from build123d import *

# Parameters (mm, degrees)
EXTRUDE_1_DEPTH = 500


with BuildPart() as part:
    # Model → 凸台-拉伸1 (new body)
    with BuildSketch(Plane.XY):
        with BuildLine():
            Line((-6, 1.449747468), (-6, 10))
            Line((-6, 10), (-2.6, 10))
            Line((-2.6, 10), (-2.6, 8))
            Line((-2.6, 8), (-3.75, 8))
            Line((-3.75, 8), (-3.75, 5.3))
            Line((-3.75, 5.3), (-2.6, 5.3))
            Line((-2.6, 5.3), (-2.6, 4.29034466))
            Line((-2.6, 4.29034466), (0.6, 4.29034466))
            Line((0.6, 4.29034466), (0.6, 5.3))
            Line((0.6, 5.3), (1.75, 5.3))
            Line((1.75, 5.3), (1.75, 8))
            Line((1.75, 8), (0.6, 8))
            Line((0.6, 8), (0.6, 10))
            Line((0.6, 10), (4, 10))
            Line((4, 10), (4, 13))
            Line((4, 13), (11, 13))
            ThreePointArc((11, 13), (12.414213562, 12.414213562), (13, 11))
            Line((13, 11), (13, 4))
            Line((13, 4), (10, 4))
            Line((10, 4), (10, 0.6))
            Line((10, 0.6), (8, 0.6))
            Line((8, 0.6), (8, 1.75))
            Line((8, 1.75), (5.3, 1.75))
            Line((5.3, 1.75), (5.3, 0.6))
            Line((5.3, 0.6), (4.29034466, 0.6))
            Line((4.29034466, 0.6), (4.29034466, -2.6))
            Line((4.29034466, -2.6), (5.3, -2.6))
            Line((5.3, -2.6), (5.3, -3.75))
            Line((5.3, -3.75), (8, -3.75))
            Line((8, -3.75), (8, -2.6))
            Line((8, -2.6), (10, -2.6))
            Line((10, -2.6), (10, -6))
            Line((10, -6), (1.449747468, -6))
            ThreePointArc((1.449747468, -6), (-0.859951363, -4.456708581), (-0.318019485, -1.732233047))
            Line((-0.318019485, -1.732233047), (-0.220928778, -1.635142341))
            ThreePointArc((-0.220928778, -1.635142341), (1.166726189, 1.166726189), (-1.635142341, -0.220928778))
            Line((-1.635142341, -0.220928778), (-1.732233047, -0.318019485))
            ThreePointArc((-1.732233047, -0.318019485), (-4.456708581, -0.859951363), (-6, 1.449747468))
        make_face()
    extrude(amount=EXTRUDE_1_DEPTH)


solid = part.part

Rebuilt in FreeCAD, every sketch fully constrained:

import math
import FreeCAD as App
import Part
import Sketcher
Q = App.Units.Quantity

doc = App.newDocument("Part")
body = doc.addObject("PartDesign::Body", "Body")

# Sketch on XY plane
sketch1 = body.newObject("Sketcher::SketchObject", "Sketch")
sketch1.AttachmentSupport = (doc.getObject("XY_Plane"), [""])
sketch1.MapMode = "FlatFace"
sketch1.addGeometry([
    Part.LineSegment(App.Vector(-6, 10, 0), App.Vector(-6, 1.45, 0)),  # 0
    Part.ArcOfCircle(Part.Circle(App.Vector(-3.5, 1.45, 0), App.Vector(0, 0, 1), 2.5), math.radians(180), math.radians(315)),  # 1
    Part.LineSegment(App.Vector(-1.73, -0.32, 0), App.Vector(-1.64, -0.22, 0)),  # 2
    Part.ArcOfCircle(Part.Circle(App.Vector(0, 0, 0), App.Vector(0, 0, 1), 1.65), math.radians(-98), math.radians(188)),  # 3
    Part.LineSegment(App.Vector(-0.22, -1.64, 0), App.Vector(-0.32, -1.73, 0)),  # 4
    Part.ArcOfCircle(Part.Circle(App.Vector(1.45, -3.5, 0), App.Vector(0, 0, 1), 2.5), math.radians(135), math.radians(270)),  # 5
    Part.LineSegment(App.Vector(1.45, -6, 0), App.Vector(10, -6, 0)),  # 6
    Part.LineSegment(App.Vector(10, -6, 0), App.Vector(10, -2.6, 0)),  # 7
    Part.LineSegment(App.Vector(10, -2.6, 0), App.Vector(8, -2.6, 0)),  # 8
    Part.LineSegment(App.Vector(8, -2.6, 0), App.Vector(8, -3.75, 0)),  # 9
    Part.LineSegment(App.Vector(8, -3.75, 0), App.Vector(5.3, -3.75, 0)),  # 10
    Part.LineSegment(App.Vector(5.3, -3.75, 0), App.Vector(5.3, -2.6, 0)),  # 11
    Part.LineSegment(App.Vector(5.3, -2.6, 0), App.Vector(4.29, -2.6, 0)),  # 12
    Part.LineSegment(App.Vector(4.29, -2.6, 0), App.Vector(4.29, 0.6, 0)),  # 13
    Part.LineSegment(App.Vector(4.29, 0.6, 0), App.Vector(5.3, 0.6, 0)),  # 14
    Part.LineSegment(App.Vector(5.3, 0.6, 0), App.Vector(5.3, 1.75, 0)),  # 15
    Part.LineSegment(App.Vector(5.3, 1.75, 0), App.Vector(8, 1.75, 0)),  # 16
    Part.LineSegment(App.Vector(8, 1.75, 0), App.Vector(8, 0.6, 0)),  # 17
    Part.LineSegment(App.Vector(8, 0.6, 0), App.Vector(10, 0.6, 0)),  # 18
    Part.LineSegment(App.Vector(10, 0.6, 0), App.Vector(10, 4, 0)),  # 19
    Part.LineSegment(App.Vector(10, 4, 0), App.Vector(13, 4, 0)),  # 20
    Part.LineSegment(App.Vector(13, 4, 0), App.Vector(13, 11, 0)),  # 21
    Part.ArcOfCircle(Part.Circle(App.Vector(11, 11, 0), App.Vector(0, 0, 1), 2), math.radians(0), math.radians(90)),  # 22
    Part.LineSegment(App.Vector(11, 13, 0), App.Vector(4, 13, 0)),  # 23
    Part.LineSegment(App.Vector(4, 13, 0), App.Vector(4, 10, 0)),  # 24
    Part.LineSegment(App.Vector(4, 10, 0), App.Vector(0.6, 10, 0)),  # 25
    Part.LineSegment(App.Vector(0.6, 10, 0), App.Vector(0.6, 8, 0)),  # 26
    Part.LineSegment(App.Vector(0.6, 8, 0), App.Vector(1.75, 8, 0)),  # 27
    Part.LineSegment(App.Vector(1.75, 8, 0), App.Vector(1.75, 5.3, 0)),  # 28
    Part.LineSegment(App.Vector(1.75, 5.3, 0), App.Vector(0.6, 5.3, 0)),  # 29
    Part.LineSegment(App.Vector(0.6, 5.3, 0), App.Vector(0.6, 4.29, 0)),  # 30
    Part.LineSegment(App.Vector(0.6, 4.29, 0), App.Vector(-2.6, 4.29, 0)),  # 31
    Part.LineSegment(App.Vector(-2.6, 4.29, 0), App.Vector(-2.6, 5.3, 0)),  # 32
    Part.LineSegment(App.Vector(-2.6, 5.3, 0), App.Vector(-3.75, 5.3, 0)),  # 33
    Part.LineSegment(App.Vector(-3.75, 5.3, 0), App.Vector(-3.75, 8, 0)),  # 34
    Part.LineSegment(App.Vector(-3.75, 8, 0), App.Vector(-2.6, 8, 0)),  # 35
    Part.LineSegment(App.Vector(-2.6, 8, 0), App.Vector(-2.6, 10, 0)),  # 36
    Part.LineSegment(App.Vector(-2.6, 10, 0), App.Vector(-6, 10, 0)),  # 37
], False)
sketch1.addConstraint([
    Sketcher.Constraint("Tangent", 0, 2, 1, 1),
    Sketcher.Constraint("Tangent", 1, 2, 2, 1),
    Sketcher.Constraint("Coincident", 2, 2, 3, 2),
    Sketcher.Constraint("Coincident", 3, 1, 4, 1),
    Sketcher.Constraint("Tangent", 4, 2, 5, 1),
    Sketcher.Constraint("Tangent", 5, 2, 6, 1),
    Sketcher.Constraint("Coincident", 6, 2, 7, 1),
    Sketcher.Constraint("Coincident", 7, 2, 8, 1),
    Sketcher.Constraint("Coincident", 8, 2, 9, 1),
    Sketcher.Constraint("Coincident", 9, 2, 10, 1),
    Sketcher.Constraint("Coincident", 10, 2, 11, 1),
    Sketcher.Constraint("Coincident", 11, 2, 12, 1),
    Sketcher.Constraint("Coincident", 12, 2, 13, 1),
    Sketcher.Constraint("Coincident", 13, 2, 14, 1),
    Sketcher.Constraint("Coincident", 14, 2, 15, 1),
    Sketcher.Constraint("Coincident", 15, 2, 16, 1),
    Sketcher.Constraint("Coincident", 16, 2, 17, 1),
    Sketcher.Constraint("Coincident", 17, 2, 18, 1),
    Sketcher.Constraint("Coincident", 18, 2, 19, 1),
    Sketcher.Constraint("Coincident", 19, 2, 20, 1),
    Sketcher.Constraint("Coincident", 20, 2, 21, 1),
    Sketcher.Constraint("Tangent", 21, 2, 22, 1),
    Sketcher.Constraint("Tangent", 22, 2, 23, 1),
    Sketcher.Constraint("Coincident", 23, 2, 24, 1),
    Sketcher.Constraint("Coincident", 24, 2, 25, 1),
    Sketcher.Constraint("Coincident", 25, 2, 26, 1),
    Sketcher.Constraint("Coincident", 26, 2, 27, 1),
    Sketcher.Constraint("Coincident", 27, 2, 28, 1),
    Sketcher.Constraint("Coincident", 28, 2, 29, 1),
    Sketcher.Constraint("Coincident", 29, 2, 30, 1),
    Sketcher.Constraint("Coincident", 30, 2, 31, 1),
    Sketcher.Constraint("Coincident", 31, 2, 32, 1),
    Sketcher.Constraint("Coincident", 32, 2, 33, 1),
    Sketcher.Constraint("Coincident", 33, 2, 34, 1),
    Sketcher.Constraint("Coincident", 34, 2, 35, 1),
    Sketcher.Constraint("Coincident", 35, 2, 36, 1),
    Sketcher.Constraint("Coincident", 36, 2, 37, 1),
    Sketcher.Constraint("Coincident", 37, 2, 0, 1),
    Sketcher.Constraint("Vertical", 0),
    Sketcher.Constraint("Horizontal", 6),
    Sketcher.Constraint("Vertical", 7),
    Sketcher.Constraint("Horizontal", 8),
    Sketcher.Constraint("Vertical", 9),
    Sketcher.Constraint("Horizontal", 10),
    Sketcher.Constraint("Vertical", 11),
    Sketcher.Constraint("Horizontal", 12),
    Sketcher.Constraint("Vertical", 13),
    Sketcher.Constraint("Horizontal", 14),
    Sketcher.Constraint("Vertical", 15),
    Sketcher.Constraint("Horizontal", 16),
    Sketcher.Constraint("Vertical", 17),
    Sketcher.Constraint("Horizontal", 18),
    Sketcher.Constraint("Vertical", 19),
    Sketcher.Constraint("Horizontal", 20),
    Sketcher.Constraint("Vertical", 21),
    Sketcher.Constraint("Horizontal", 23),
    Sketcher.Constraint("Vertical", 24),
    Sketcher.Constraint("Horizontal", 25),
    Sketcher.Constraint("Vertical", 26),
    Sketcher.Constraint("Horizontal", 27),
    Sketcher.Constraint("Vertical", 28),
    Sketcher.Constraint("Horizontal", 29),
    Sketcher.Constraint("Vertical", 30),
    Sketcher.Constraint("Horizontal", 31),
    Sketcher.Constraint("Vertical", 32),
    Sketcher.Constraint("Horizontal", 33),
    Sketcher.Constraint("Vertical", 34),
    Sketcher.Constraint("Horizontal", 35),
    Sketcher.Constraint("Vertical", 36),
    Sketcher.Constraint("Horizontal", 37),
    Sketcher.Constraint("Coincident", 3, 3, -1, 1),
    Sketcher.Constraint("Equal", 1, 5),
    Sketcher.Constraint("Parallel", 2, 4),
    Sketcher.Constraint("Horizontal", 8, 2, 11, 2),
    Sketcher.Constraint("Horizontal", 14, 2, 17, 2),
    Sketcher.Constraint("Horizontal", 29, 2, 32, 2),
    Sketcher.Constraint("Horizontal", 27, 2, 34, 2),
    Sketcher.Constraint("Horizontal", 25, 2, 36, 2),
    Sketcher.Constraint("Vertical", 11, 2, 14, 2),
    Sketcher.Constraint("Vertical", 9, 2, 16, 2),
    Sketcher.Constraint("Vertical", 7, 2, 18, 2),
    Sketcher.Constraint("Vertical", 26, 2, 29, 2),
    Sketcher.Constraint("Vertical", 32, 2, 35, 2),
    Sketcher.Constraint("Equal", 29, 33),
    Sketcher.Constraint("Equal", 25, 37),
    Sketcher.Constraint("Equal", 6, 0),
    Sketcher.Constraint("Equal", 37, 7),
    Sketcher.Constraint("Equal", 35, 9),
    Sketcher.Constraint("Equal", 31, 13),
    Sketcher.Constraint("Equal", 11, 15),
    Sketcher.Constraint("Equal", 7, 19),
    Sketcher.Constraint("Equal", 23, 21),
    Sketcher.Constraint("Equal", 20, 24),
    Sketcher.Constraint("Equal", 18, 26),
    Sketcher.Constraint("Equal", 16, 28),
    Sketcher.Constraint("Equal", 14, 30),
    Sketcher.Constraint("Equal", 2, 4),
    Sketcher.Constraint("Radius", 22, Q("2 mm")),
    Sketcher.Constraint("Radius", 1, Q("2.5 mm")),
    Sketcher.Constraint("DistanceX", 8, 2, 8, 1, Q("2 mm")),
    Sketcher.Constraint("DistanceX", 20, 1, 20, 2, Q("3 mm")),
    Sketcher.Constraint("DistanceX", 23, 2, 23, 1, Q("7 mm")),
    Sketcher.Constraint("Angle", 2, Q("45 deg")),
    Sketcher.Constraint("Radius", 3, Q("1.65 mm")),
    Sketcher.Constraint("DistanceX", 10, 2, 10, 1, Q("2.7 mm")),
    Sketcher.Constraint("DistanceX", 25, 2, 25, 1, Q("3.4 mm")),
    Sketcher.Constraint("DistanceX", 31, 2, 31, 1, Q("3.2 mm")),
    Sketcher.Constraint("DistanceX", -1, 1, 22, 3, Q("11 mm")),
    Sketcher.Constraint("DistanceX", 27, 1, 27, 2, Q("1.15 mm")),
    Sketcher.Constraint("DistanceX", 6, 1, 6, 2, Q("8.550253 mm")),
    Sketcher.Constraint("DistanceX", 12, 2, 12, 1, Q("1.009655 mm")),
])
pad1 = body.newObject("PartDesign::Pad", "Pad")
pad1.Profile = sketch1
pad1.Length = 500

doc.recompute()
